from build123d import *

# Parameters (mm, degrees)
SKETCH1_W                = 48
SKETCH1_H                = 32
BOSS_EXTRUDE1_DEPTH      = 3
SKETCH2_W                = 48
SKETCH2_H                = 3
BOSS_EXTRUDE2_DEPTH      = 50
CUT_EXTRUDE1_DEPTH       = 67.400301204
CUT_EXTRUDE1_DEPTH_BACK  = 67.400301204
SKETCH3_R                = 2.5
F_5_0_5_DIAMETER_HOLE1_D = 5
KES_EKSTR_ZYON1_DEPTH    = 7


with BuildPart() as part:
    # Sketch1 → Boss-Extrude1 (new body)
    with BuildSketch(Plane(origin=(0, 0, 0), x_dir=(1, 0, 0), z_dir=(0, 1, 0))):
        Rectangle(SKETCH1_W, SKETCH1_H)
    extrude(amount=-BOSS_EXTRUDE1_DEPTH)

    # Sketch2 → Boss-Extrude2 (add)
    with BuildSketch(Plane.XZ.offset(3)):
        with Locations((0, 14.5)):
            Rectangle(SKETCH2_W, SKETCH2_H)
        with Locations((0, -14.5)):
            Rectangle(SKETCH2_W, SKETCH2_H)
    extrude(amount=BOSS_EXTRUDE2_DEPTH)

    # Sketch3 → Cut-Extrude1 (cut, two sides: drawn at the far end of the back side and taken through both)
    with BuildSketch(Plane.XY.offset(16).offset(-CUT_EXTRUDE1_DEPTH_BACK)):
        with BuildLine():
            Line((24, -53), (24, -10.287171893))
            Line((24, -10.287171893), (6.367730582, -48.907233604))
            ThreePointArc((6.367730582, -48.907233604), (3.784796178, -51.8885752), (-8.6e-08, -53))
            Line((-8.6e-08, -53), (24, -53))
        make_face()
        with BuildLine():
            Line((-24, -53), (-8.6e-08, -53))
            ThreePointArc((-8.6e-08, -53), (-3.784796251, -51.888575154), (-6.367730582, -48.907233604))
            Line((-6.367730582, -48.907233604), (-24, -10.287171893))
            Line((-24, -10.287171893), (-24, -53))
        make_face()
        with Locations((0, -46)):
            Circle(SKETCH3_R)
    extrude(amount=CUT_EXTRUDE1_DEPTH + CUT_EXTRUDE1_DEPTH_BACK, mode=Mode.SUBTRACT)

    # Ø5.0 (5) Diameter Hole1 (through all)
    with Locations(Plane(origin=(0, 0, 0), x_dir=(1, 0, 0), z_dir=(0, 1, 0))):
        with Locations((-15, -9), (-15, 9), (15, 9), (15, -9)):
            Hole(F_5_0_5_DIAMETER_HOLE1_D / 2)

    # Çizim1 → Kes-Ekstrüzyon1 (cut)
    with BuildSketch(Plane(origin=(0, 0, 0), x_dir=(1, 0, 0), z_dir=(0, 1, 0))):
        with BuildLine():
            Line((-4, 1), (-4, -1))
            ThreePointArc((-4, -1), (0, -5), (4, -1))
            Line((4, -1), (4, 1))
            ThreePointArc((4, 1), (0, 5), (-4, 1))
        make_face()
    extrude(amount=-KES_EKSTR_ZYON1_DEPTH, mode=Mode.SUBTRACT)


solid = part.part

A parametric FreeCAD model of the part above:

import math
import FreeCAD as App
import Part
import Sketcher
from FreeCAD import Vector

doc = App.newDocument("Part")
body = doc.addObject("PartDesign::Body", "Body")

sketch1 = body.newObject("Sketcher::SketchObject", "Sketch")
sketch1.AttachmentSupport = (doc.getObject("XZ_Plane"), [""])
sketch1.MapMode = "FlatFace"
sketch1.addGeometry([
    Part.LineSegment(Vector(-24, -16, 0), Vector(-24, 16, 0)),
    Part.LineSegment(Vector(-24, 16, 0), Vector(24, 16, 0)),
    Part.LineSegment(Vector(24, 16, 0), Vector(24, -16, 0)),
    Part.LineSegment(Vector(24, -16, 0), Vector(-24, -16, 0)),
], False)
sketch1.addConstraint([
    Sketcher.Constraint("Coincident", 0, 2, 1, 1),
    Sketcher.Constraint("Coincident", 1, 2, 2, 1),
    Sketcher.Constraint("Coincident", 2, 2, 3, 1),
    Sketcher.Constraint("Coincident", 3, 2, 0, 1),
    Sketcher.Constraint("Vertical", 0),
    Sketcher.Constraint("Horizontal", 1),
    Sketcher.Constraint("Vertical", 2),
    Sketcher.Constraint("Horizontal", 3),
    Sketcher.Constraint("Symmetric", 0, 2, 2, 2, -1, 1),
    Sketcher.Constraint("DistanceX", 1, 1, 1, 2, 48.0),
    Sketcher.Constraint("DistanceY", 0, 1, 0, 2, 32.0),
])
pad1 = body.newObject("PartDesign::Pad", "Pad")
pad1.Profile = sketch1
pad1.Length = 3

sketch2 = body.newObject("Sketcher::SketchObject", "Sketch001")
sketch2.AttachmentSupport = (doc.getObject("XZ_Plane"), [""])
sketch2.MapMode = "FlatFace"
sketch2.AttachmentOffset = App.Placement(Vector(0, 0, 3), App.Rotation())
sketch2.addGeometry([
    Part.LineSegment(Vector(-24, 16, 0), Vector(-24, 13, 0)),
    Part.LineSegment(Vector(-24, 13, 0), Vector(24, 13, 0)),
    Part.LineSegment(Vector(24, 13, 0), Vector(24, 16, 0)),
    Part.LineSegment(Vector(24, 16, 0), Vector(-24, 16, 0)),
    Part.LineSegment(Vector(-24, -13, 0), Vector(-24, -16, 0)),
    Part.LineSegment(Vector(-24, -16, 0), Vector(24, -16, 0)),
    Part.LineSegment(Vector(24, -16, 0), Vector(24, -13, 0)),
    Part.LineSegment(Vector(24, -13, 0), Vector(-24, -13, 0)),
], False)
sketch2.addConstraint([
    Sketcher.Constraint("Coincident", 0, 2, 1, 1),
    Sketcher.Constraint("Coincident", 1, 2, 2, 1),
    Sketcher.Constraint("Coincident", 2, 2, 3, 1),
    Sketcher.Constraint("Coincident", 3, 2, 0, 1),
    Sketcher.Constraint("Coincident", 4, 2, 5, 1),
    Sketcher.Constraint("Coincident", 5, 2, 6, 1),
    Sketcher.Constraint("Coincident", 6, 2, 7, 1),
    Sketcher.Constraint("Coincident", 7, 2, 4, 1),
    Sketcher.Constraint("Vertical", 0),
    Sketcher.Constraint("Horizontal", 1),
    Sketcher.Constraint("Vertical", 2),
    Sketcher.Constraint("Horizontal", 3),
    Sketcher.Constraint("Vertical", 4),
    Sketcher.Constraint("Horizontal", 5),
    Sketcher.Constraint("Vertical", 6),
    Sketcher.Constraint("Horizontal", 7),
    Sketcher.Constraint("Symmetric", 2, 2, 4, 2, -1, 1),
    Sketcher.Constraint("Symmetric", 0, 2, 6, 2, -1, 1),
    Sketcher.Constraint("Vertical", 3, 2, 4, 2),
    Sketcher.Constraint("DistanceX", 1, 1, 1, 2, 48.0),
    Sketcher.Constraint("DistanceY", 0, 2, 0, 1, 3.0),
    Sketcher.Constraint("DistanceY", -1, 1, 0, 2, 13.0),
])
pad2 = body.newObject("PartDesign::Pad", "Pad001")
pad2.Profile = sketch2
pad2.Length = 50

sketch3 = body.newObject("Sketcher::SketchObject", "Sketch002")
sketch3.AttachmentSupport = (doc.getObject("XY_Plane"), [""])
sketch3.MapMode = "FlatFace"
sketch3.AttachmentOffset = App.Placement(Vector(0, 0, 16), App.Rotation())
sketch3.addGeometry([
    Part.LineSegment(Vector(24, -53, 0), Vector(24, -10.3, 0)),
    Part.LineSegment(Vector(24, -10.3, 0), Vector(6.4, -48.9, 0)),
    Part.ArcOfCircle(Part.Circle(Vector(0, -46, 0), Vector(0, 0, 1), 7), math.radians(-90), math.radians(-25)),
    Part.LineSegment(Vector(0, -53, 0), Vector(24, -53, 0)),
    Part.LineSegment(Vector(-24, -53, 0), Vector(0, -53, 0)),
    Part.ArcOfCircle(Part.Circle(Vector(0, -46, 0), Vector(0, 0, 1), 7), math.radians(-155), math.radians(-90)),
    Part.LineSegment(Vector(-6.4, -48.9, 0), Vector(-24, -10.3, 0)),
    Part.LineSegment(Vector(-24, -10.3, 0), Vector(-24, -53, 0)),
    Part.Circle(Vector(0, -46, 0), Vector(0, 0, 1), 2.5),
], False)
sketch3.addConstraint([
    Sketcher.Constraint("Coincident", 0, 2, 1, 1),
    Sketcher.Constraint("Tangent", 1, 2, 2, 2),
    Sketcher.Constraint("Tangent", 2, 1, 3, 1),
    Sketcher.Constraint("Coincident", 3, 2, 0, 1),
    Sketcher.Constraint("Tangent", 4, 2, 5, 2),
    Sketcher.Constraint("Tangent", 5, 1, 6, 1),
    Sketcher.Constraint("Coincident", 6, 2, 7, 1),
    Sketcher.Constraint("Coincident", 7, 2, 4, 1),
    Sketcher.Constraint("Vertical", 0),
    Sketcher.Constraint("Horizontal", 3),
    Sketcher.Constraint("Horizontal", 4),
    Sketcher.Constraint("Vertical", 7),
    Sketcher.Constraint("Coincident", 5, 3, 2, 3),
    Sketcher.Constraint("Coincident", 8, 3, 2, 3),
    Sketcher.Constraint("Equal", 2, 5),
    Sketcher.Constraint("Symmetric", 1, 2, 5, 1, -2),
    Sketcher.Constraint("Horizontal", 0, 2, 6, 2),
    Sketcher.Constraint("Diameter", 8, 5.0),
    Sketcher.Constraint("Radius", 2, 7.0),
    Sketcher.Constraint("DistanceX", 3, 1, 3, 2, 24.0),
    Sketcher.Constraint("DistanceY", 2, 3, -1, 1, 46.0),
    Sketcher.Constraint("DistanceY", 0, 1, 0, 2, 42.712828),
])
pocket1 = body.newObject("PartDesign::Pocket", "Pocket")
pocket1.Profile = sketch3
pocket1.Type = "ThroughAll"
pocket1.Midplane = True

sketch4 = body.newObject("Sketcher::SketchObject", "Sketch003")
sketch4.AttachmentSupport = (doc.getObject("XZ_Plane"), [""])
sketch4.MapMode = "FlatFace"
sketch4.addGeometry([
    Part.Circle(Vector(-15, 9, 0), Vector(0, 0, 1), 2.5),
    Part.Circle(Vector(-15, -9, 0), Vector(0, 0, 1), 2.5),
    Part.Circle(Vector(15, -9, 0), Vector(0, 0, 1), 2.5),
    Part.Circle(Vector(15, 9, 0), Vector(0, 0, 1), 2.5),
], False)
sketch4.addConstraint([
    Sketcher.Constraint("Equal", 0, 1),
    Sketcher.Constraint("Equal", 1, 2),
    Sketcher.Constraint("Equal", 2, 3),
    Sketcher.Constraint("Symmetric", 0, 3, 2, 3, -1, 1),
    Sketcher.Constraint("Symmetric", 1, 3, 3, 3, -1, 1),
    Sketcher.Constraint("Symmetric", 1, 3, 2, 3, -2),
    Sketcher.Constraint("Diameter", 0, 5.0),
    Sketcher.Constraint("DistanceX", 0, 3, -1, 1, 15.0),
    Sketcher.Constraint("DistanceY", -1, 1, 0, 3, 9.0),
])
doc.recompute()
hole = body.newObject("PartDesign::Hole", "Hole")
hole.Profile = sketch4
hole.ThreadType = "None"
hole.Diameter = 5
hole.DepthType = "ThroughAll"
hole.Reversed = True

sketch5 = body.newObject("Sketcher::SketchObject", "Sketch004")
sketch5.AttachmentSupport = (doc.getObject("XZ_Plane"), [""])
sketch5.MapMode = "FlatFace"
sketch5.addGeometry([
    Part.LineSegment(Vector(-4, -1, 0), Vector(-4, 1, 0)),
    Part.ArcOfCircle(Part.Circle(Vector(0, 1, 0), Vector(0, 0, 1), 4), math.radians(0), math.radians(180)),
    Part.LineSegment(Vector(4, 1, 0), Vector(4, -1, 0)),
    Part.ArcOfCircle(Part.Circle(Vector(0, -1, 0), Vector(0, 0, 1), 4), math.radians(180), math.radians(360)),
], False)
sketch5.addConstraint([
    Sketcher.Constraint("Tangent", 0, 2, 1, 2),
    Sketcher.Constraint("Tangent", 1, 1, 2, 1),
    Sketcher.Constraint("Tangent", 2, 2, 3, 2),
    Sketcher.Constraint("Tangent", 3, 1, 0, 1),
    Sketcher.Constraint("Vertical", 0),
    Sketcher.Constraint("Vertical", 2),
    Sketcher.Constraint("Symmetric", 1, 3, 3, 3, -1, 1),
    Sketcher.Constraint("Radius", 1, 4.0),
    Sketcher.Constraint("DistanceY", 0, 1, 0, 2, 2.0),
])
pocket2 = body.newObject("PartDesign::Pocket", "Pocket001")
pocket2.Profile = sketch5
pocket2.Length = 7
pocket2.Reversed = True

doc.recompute()
